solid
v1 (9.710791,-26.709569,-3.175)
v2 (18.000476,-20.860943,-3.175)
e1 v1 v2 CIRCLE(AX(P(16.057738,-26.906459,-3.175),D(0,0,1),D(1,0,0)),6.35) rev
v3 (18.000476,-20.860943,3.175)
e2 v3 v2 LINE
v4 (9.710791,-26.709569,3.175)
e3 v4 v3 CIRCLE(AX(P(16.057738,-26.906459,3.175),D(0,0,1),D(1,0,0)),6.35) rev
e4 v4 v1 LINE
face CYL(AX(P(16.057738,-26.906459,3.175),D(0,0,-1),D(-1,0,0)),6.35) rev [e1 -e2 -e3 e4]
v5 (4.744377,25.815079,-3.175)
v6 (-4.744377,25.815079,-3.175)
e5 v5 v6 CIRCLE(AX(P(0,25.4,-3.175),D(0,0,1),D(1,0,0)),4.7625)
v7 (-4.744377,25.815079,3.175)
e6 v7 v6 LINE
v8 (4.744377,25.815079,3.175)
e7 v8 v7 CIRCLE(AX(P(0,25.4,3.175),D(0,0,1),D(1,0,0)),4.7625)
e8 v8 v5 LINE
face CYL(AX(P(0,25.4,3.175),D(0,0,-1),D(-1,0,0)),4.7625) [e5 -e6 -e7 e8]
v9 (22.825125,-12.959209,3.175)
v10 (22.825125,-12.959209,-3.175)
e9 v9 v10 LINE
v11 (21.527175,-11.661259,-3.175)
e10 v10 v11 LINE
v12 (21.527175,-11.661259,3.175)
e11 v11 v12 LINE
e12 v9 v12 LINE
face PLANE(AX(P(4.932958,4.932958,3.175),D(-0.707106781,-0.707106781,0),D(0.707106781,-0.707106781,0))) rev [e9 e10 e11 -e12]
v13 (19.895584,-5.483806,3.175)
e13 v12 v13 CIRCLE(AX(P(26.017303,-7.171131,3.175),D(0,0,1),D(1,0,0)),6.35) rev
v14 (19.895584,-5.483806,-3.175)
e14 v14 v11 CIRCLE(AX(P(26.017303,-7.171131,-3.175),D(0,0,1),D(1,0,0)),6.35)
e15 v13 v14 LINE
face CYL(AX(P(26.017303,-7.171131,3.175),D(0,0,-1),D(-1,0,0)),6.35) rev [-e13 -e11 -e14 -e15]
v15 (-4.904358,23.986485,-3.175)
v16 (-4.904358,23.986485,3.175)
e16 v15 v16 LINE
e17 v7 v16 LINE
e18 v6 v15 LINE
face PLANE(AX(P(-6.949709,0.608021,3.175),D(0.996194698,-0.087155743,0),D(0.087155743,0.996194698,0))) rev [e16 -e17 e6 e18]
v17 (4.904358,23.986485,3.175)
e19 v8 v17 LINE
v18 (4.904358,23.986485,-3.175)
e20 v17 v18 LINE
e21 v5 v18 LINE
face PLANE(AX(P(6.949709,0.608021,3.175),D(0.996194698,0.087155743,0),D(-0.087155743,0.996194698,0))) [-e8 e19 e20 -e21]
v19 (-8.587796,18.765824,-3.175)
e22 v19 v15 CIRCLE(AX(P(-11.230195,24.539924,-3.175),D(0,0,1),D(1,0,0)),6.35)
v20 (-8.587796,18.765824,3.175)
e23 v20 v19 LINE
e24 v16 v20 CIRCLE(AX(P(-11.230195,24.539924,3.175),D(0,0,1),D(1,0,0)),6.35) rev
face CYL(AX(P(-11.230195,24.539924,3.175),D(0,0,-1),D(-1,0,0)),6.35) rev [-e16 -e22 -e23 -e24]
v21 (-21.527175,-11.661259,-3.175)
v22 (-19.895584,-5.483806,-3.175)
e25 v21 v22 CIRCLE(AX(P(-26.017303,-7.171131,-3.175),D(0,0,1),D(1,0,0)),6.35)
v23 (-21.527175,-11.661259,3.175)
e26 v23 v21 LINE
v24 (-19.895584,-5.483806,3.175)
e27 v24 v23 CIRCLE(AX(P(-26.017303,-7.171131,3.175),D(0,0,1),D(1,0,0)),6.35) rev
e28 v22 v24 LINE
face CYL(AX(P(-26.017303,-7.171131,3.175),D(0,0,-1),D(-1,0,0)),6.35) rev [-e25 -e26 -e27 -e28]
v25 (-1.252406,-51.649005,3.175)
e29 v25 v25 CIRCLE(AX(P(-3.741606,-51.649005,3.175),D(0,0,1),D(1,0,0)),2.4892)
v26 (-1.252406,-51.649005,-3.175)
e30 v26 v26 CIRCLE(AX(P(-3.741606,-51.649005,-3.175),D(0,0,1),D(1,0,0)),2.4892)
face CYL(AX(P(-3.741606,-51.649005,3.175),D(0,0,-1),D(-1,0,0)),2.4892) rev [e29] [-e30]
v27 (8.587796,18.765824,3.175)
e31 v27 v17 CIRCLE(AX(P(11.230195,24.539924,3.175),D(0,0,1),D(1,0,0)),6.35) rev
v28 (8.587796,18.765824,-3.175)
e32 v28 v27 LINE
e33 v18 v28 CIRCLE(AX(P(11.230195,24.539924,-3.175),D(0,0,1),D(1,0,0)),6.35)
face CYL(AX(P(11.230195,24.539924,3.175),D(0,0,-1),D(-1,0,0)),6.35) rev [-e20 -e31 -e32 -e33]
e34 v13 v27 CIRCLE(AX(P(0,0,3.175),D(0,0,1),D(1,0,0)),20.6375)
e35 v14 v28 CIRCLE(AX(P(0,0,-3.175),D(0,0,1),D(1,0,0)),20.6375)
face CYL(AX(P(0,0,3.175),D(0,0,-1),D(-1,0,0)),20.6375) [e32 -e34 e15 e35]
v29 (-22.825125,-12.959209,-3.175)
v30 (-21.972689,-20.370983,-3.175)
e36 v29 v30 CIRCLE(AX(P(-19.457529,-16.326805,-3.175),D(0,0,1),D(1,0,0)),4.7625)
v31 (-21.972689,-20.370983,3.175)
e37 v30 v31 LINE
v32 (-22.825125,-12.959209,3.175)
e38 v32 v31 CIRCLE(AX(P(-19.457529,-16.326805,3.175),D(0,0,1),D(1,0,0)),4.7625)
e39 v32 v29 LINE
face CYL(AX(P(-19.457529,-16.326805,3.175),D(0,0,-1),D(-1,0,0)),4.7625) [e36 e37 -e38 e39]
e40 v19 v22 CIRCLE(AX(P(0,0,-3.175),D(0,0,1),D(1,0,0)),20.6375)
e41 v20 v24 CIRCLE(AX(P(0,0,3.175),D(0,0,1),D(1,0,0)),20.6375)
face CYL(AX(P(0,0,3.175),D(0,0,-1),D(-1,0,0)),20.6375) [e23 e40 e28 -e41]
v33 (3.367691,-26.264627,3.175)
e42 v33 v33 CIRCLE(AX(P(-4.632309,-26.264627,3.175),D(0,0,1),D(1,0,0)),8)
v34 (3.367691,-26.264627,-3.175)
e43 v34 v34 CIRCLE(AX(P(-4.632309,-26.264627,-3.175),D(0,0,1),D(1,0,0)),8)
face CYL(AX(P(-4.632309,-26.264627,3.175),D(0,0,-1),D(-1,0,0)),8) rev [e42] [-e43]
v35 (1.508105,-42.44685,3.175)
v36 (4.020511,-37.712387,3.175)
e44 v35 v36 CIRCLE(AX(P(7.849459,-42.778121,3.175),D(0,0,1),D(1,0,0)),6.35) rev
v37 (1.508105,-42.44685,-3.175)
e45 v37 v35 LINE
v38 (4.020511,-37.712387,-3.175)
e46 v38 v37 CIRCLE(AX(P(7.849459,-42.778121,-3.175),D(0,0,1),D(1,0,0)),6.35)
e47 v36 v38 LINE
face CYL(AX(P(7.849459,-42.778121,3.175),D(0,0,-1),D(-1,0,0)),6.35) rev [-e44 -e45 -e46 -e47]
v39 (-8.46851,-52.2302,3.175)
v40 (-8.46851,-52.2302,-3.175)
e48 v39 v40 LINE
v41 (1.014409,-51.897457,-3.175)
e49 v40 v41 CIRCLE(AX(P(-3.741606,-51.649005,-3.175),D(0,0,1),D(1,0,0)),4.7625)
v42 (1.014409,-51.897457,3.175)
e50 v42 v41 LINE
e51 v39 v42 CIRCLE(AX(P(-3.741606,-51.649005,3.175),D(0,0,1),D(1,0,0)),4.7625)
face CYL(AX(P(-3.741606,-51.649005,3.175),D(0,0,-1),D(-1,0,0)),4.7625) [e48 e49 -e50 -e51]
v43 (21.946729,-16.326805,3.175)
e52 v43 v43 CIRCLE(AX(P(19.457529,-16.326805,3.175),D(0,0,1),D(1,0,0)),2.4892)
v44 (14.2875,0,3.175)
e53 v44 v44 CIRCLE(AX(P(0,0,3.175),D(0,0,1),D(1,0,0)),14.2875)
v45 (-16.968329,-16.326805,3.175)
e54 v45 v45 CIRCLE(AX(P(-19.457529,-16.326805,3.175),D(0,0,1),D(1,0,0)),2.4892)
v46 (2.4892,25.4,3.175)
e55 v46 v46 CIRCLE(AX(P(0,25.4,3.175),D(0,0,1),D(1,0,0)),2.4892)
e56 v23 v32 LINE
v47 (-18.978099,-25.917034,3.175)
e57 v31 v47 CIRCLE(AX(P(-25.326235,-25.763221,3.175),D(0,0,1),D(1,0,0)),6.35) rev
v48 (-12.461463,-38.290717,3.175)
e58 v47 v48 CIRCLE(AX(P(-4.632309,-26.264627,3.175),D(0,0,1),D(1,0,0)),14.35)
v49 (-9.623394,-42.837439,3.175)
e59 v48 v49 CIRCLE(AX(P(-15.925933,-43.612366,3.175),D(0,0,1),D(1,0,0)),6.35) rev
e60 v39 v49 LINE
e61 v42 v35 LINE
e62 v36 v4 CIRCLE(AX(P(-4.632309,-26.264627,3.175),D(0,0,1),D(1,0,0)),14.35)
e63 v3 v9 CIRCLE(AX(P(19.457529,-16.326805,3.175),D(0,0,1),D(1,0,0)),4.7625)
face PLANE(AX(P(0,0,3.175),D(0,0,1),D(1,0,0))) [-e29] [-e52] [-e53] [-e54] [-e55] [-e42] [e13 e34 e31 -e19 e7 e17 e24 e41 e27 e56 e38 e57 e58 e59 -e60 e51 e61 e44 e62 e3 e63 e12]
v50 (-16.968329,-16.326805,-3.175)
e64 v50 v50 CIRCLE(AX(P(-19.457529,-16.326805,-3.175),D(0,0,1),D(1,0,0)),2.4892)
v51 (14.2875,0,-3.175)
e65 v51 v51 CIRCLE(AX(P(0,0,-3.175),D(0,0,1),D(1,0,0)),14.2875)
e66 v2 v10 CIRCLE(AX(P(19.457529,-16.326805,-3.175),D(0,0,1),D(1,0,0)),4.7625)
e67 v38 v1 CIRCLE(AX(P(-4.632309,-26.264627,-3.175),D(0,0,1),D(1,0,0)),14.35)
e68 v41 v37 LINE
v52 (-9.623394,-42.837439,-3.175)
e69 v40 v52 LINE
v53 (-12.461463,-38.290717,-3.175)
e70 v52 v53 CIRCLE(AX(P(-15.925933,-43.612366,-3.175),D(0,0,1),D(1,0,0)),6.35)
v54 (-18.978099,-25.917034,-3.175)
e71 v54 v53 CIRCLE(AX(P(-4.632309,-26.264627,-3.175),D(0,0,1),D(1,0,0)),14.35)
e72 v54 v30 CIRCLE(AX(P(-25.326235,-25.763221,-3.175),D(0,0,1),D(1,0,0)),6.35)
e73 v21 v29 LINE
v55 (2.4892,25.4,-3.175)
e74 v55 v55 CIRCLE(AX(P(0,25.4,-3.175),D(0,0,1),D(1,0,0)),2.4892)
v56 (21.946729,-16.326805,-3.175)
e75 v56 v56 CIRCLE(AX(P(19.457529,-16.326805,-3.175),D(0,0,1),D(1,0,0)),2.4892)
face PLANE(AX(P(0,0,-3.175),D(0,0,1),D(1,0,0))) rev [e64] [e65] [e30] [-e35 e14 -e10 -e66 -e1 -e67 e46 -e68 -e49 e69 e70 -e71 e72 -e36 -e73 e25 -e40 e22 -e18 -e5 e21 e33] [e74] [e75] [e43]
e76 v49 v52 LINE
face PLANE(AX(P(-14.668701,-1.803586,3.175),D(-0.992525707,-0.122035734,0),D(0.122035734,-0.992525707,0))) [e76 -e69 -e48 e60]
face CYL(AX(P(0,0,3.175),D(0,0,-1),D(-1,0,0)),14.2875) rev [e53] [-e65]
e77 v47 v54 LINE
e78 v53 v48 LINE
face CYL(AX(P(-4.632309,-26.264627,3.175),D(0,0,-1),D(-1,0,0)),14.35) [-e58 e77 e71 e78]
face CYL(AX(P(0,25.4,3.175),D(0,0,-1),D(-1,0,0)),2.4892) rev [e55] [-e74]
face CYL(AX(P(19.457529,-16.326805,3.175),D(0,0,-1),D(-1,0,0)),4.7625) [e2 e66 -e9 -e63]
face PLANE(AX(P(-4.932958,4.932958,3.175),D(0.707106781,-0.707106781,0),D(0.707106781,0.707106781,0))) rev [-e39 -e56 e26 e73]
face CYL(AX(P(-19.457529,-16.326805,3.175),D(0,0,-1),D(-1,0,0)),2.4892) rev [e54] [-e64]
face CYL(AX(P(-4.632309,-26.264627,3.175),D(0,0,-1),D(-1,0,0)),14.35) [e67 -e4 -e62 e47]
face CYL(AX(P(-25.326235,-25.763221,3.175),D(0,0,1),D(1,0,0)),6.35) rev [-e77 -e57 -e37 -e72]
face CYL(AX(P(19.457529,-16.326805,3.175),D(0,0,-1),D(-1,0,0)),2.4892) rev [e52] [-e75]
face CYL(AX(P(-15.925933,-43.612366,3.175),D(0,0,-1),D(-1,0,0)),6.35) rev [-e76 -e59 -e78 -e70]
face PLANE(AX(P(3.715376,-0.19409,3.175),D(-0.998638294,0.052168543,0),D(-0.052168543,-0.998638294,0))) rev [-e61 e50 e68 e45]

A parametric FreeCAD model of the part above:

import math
import FreeCAD as App
import Part
import Sketcher
Q = App.Units.Quantity


def edges_at(feature, points):
    """Names of the edges that pass closest to the given points."""
    edges = feature.Shape.Edges
    near = lambda p: min(range(len(edges)), key=lambda i: edges[i].distToShape(Part.Vertex(*p))[0])
    return sorted({f"Edge{near(p) + 1}" for p in points})

doc = App.newDocument("Part")
params = doc.addObject("Spreadsheet::Sheet", "Params")
for row, (alias, value) in enumerate([
    ("sketch1_diameter", "0.196 in"),
    ("sketch1_diameter2", "1.125 in"),
    ("sketch1_radius", "0.1875 in"),
    ("sketch1_radius2", "0.8125 in"),
    ("pad1_length", "0.25 in"),
    ("sketch2_radius", "0.25 in"),
    ("sketch2_diameter", "0.196 in"),
    ("sketch2_radius2", "0.1875 in"),
    ("sketch2_radius3", "0.1875 in"),
    ("sketch2_radius4", "0.8125 in"),
    ("pad2_length", "0.25 in"),
    ("fillet_radius", "0.25 in"),
], start=1):
    params.set(f"A{row}", alias)
    params.set(f"B{row}", "=" + value)
    params.setAlias(f"B{row}", alias)

body = doc.addObject("PartDesign::Body", "Body")

# Sketch on XY plane
sketch1 = doc.addObject("Sketcher::SketchObject", "Sketch")
body.addObject(sketch1)
sketch1.AttachmentSupport = (doc.XY_Plane, [""])
sketch1.MapMode = "FlatFace"
sketch1.addGeometry(Part.ArcOfCircle(Part.Circle(App.Vector(0, 25.4, 0), App.Vector(0, 0, 1), 4.8), math.radians(5), math.radians(175)), False)
sketch1.addGeometry(Part.LineSegment(App.Vector(-4.7, 25.8, 0), App.Vector(-5.3, 20, 0)), False)
sketch1.addGeometry(Part.ArcOfCircle(Part.Circle(App.Vector(0, 0, 0), App.Vector(0, 0, 1), 20.6), math.radians(105), math.radians(205)), False)
sketch1.addGeometry(Part.LineSegment(App.Vector(-18.7, -8.8, 0), App.Vector(-22.8, -13, 0)), False)
sketch1.addGeometry(Part.ArcOfCircle(Part.Circle(App.Vector(-19.5, -16.3, 0), App.Vector(0, 0, 1), 4.8), math.radians(135), math.radians(305)), False)
sketch1.addGeometry(Part.LineSegment(App.Vector(-16.7, -20.2, 0), App.Vector(-11.9, -16.9, 0)), False)
sketch1.addGeometry(Part.ArcOfCircle(Part.Circle(App.Vector(0, 0, 0), App.Vector(0, 0, 1), 20.6), math.radians(-125), math.radians(-55)), False)
sketch1.addGeometry(Part.LineSegment(App.Vector(11.9, -16.9, 0), App.Vector(16.7, -20.2, 0)), False)
sketch1.addGeometry(Part.ArcOfCircle(Part.Circle(App.Vector(19.5, -16.3, 0), App.Vector(0, 0, 1), 4.8), math.radians(-125), math.radians(45)), False)
sketch1.addGeometry(Part.LineSegment(App.Vector(22.8, -13, 0), App.Vector(18.7, -8.8, 0)), False)
sketch1.addGeometry(Part.ArcOfCircle(Part.Circle(App.Vector(0, 0, 0), App.Vector(0, 0, 1), 20.6), math.radians(-25), math.radians(75)), False)
sketch1.addGeometry(Part.LineSegment(App.Vector(5.3, 20, 0), App.Vector(4.7, 25.8, 0)), False)
sketch1.addGeometry(Part.Circle(App.Vector(-19.5, -16.3, 0), App.Vector(0, 0, 1), 2.5), False)
sketch1.addGeometry(Part.Circle(App.Vector(19.5, -16.3, 0), App.Vector(0, 0, 1), 2.5), False)
sketch1.addGeometry(Part.Circle(App.Vector(0, 0, 0), App.Vector(0, 0, 1), 14.3), False)
sketch1.addGeometry(Part.Circle(App.Vector(0, 25.4, 0), App.Vector(0, 0, 1), 2.5), False)
sketch1.addConstraint(Sketcher.Constraint("Tangent", 0, 2, 1, 1))
sketch1.addConstraint(Sketcher.Constraint("Coincident", 1, 2, 2, 1))
sketch1.addConstraint(Sketcher.Constraint("Coincident", 2, 2, 3, 1))
sketch1.addConstraint(Sketcher.Constraint("Tangent", 3, 2, 4, 1))
sketch1.addConstraint(Sketcher.Constraint("Tangent", 4, 2, 5, 1))
sketch1.addConstraint(Sketcher.Constraint("Coincident", 5, 2, 6, 1))
sketch1.addConstraint(Sketcher.Constraint("Coincident", 6, 2, 7, 1))
sketch1.addConstraint(Sketcher.Constraint("Tangent", 7, 2, 8, 1))
sketch1.addConstraint(Sketcher.Constraint("Tangent", 8, 2, 9, 1))
sketch1.addConstraint(Sketcher.Constraint("Coincident", 9, 2, 10, 1))
sketch1.addConstraint(Sketcher.Constraint("Coincident", 10, 2, 11, 1))
sketch1.addConstraint(Sketcher.Constraint("Tangent", 11, 2, 0, 1))
sketch1.addConstraint(Sketcher.Constraint("Coincident", 2, 3, -1, 1))
sketch1.addConstraint(Sketcher.Constraint("Coincident", 6, 3, -1, 1))
sketch1.addConstraint(Sketcher.Constraint("Coincident", 10, 3, -1, 1))
sketch1.addConstraint(Sketcher.Constraint("Coincident", 14, 3, -1, 1))
sketch1.addConstraint(Sketcher.Constraint("Coincident", 12, 3, 4, 3))
sketch1.addConstraint(Sketcher.Constraint("Coincident", 13, 3, 8, 3))
sketch1.addConstraint(Sketcher.Constraint("Coincident", 15, 3, 0, 3))
sketch1.addConstraint(Sketcher.Constraint("Equal", 0, 4))
sketch1.addConstraint(Sketcher.Constraint("Equal", 2, 6))
sketch1.addConstraint(Sketcher.Constraint("Equal", 4, 8))
sketch1.addConstraint(Sketcher.Constraint("Equal", 6, 10))
sketch1.addConstraint(Sketcher.Constraint("Equal", 12, 13))
sketch1.addConstraint(Sketcher.Constraint("Equal", 13, 15))
sketch1.addConstraint(Sketcher.Constraint("Symmetric", 4, 3, 8, 3, -2))
sketch1.addConstraint(Sketcher.Constraint("Symmetric", 0, 2, 11, 2, -2))
sketch1.addConstraint(Sketcher.Constraint("Perpendicular", 3, 9))
sketch1.addConstraint(Sketcher.Constraint("Horizontal", 5, 2, 6, 2))
sketch1.addConstraint(Sketcher.Constraint("Horizontal", 3, 2, 8, 2))
sketch1.addConstraint(Sketcher.Constraint("Equal", 1, 3))
sketch1.addConstraint(Sketcher.Constraint("Equal", 3, 5))
sketch1.addConstraint(Sketcher.Constraint("Diameter", 12, Q("0.196 in")))
sketch1.addConstraint(Sketcher.Constraint("Diameter", 14, Q("1.125 in")))
sketch1.addConstraint(Sketcher.Constraint("DistanceY", -1, 1, 0, 3, Q("1 in")))
sketch1.addConstraint(Sketcher.Constraint("Angle", 1, Q("-95 deg")))
sketch1.addConstraint(Sketcher.Constraint("Angle", 5, Q("35 deg")))
sketch1.addConstraint(Sketcher.Constraint("Radius", 0, Q("0.1875 in")))
sketch1.addConstraint(Sketcher.Constraint("Radius", 2, Q("0.8125 in")))
sketch1.setExpression("Constraints[32]", "Params.sketch1_diameter")
sketch1.setExpression("Constraints[33]", "Params.sketch1_diameter2")
sketch1.setExpression("Constraints[37]", "Params.sketch1_radius")
sketch1.setExpression("Constraints[38]", "Params.sketch1_radius2")
pad1 = doc.addObject("PartDesign::Pad", "Pad")
body.addObject(pad1)
pad1.Profile = sketch1
pad1.setExpression("Length", "Params.pad1_length")
pad1.Midplane = True

# Sketch on XY plane
sketch2 = doc.addObject("Sketcher::SketchObject", "Sketch001")
body.addObject(sketch2)
sketch2.AttachmentSupport = (doc.XY_Plane, [""])
sketch2.MapMode = "FlatFace"
sketch2.addGeometry(Part.LineSegment(App.Vector(-10.026081, -39.562361, 0), App.Vector(-8.46851, -52.2302, 0)), False)
sketch2.addGeometry(Part.ArcOfCircle(Part.Circle(App.Vector(-3.741606, -51.649005, 0), App.Vector(0, 0, 1), 4.7625), math.radians(-172.990395), math.radians(-2.990395)), False)
sketch2.addGeometry(Part.LineSegment(App.Vector(1.014409, -51.897457, 0), App.Vector(1.680248, -39.151602, 0)), False)
sketch2.addGeometry(Part.ArcOfCircle(Part.Circle(App.Vector(-4.632309, -26.264627, 0), App.Vector(0, 0, 1), 14.35), math.radians(-63.902535), math.radians(-1.776821)), False)
sketch2.addGeometry(Part.ArcOfCircle(Part.Circle(App.Vector(16.057738, -26.906459, 0), App.Vector(0, 0, 1), 6.35), math.radians(72.185099), math.radians(178.223179)), False)
sketch2.addGeometry(Part.ArcOfCircle(Part.Circle(App.Vector(19.457529, -16.326805, 0), App.Vector(0, 0, 1), 4.7625), math.radians(-125), math.radians(-107.814901)), False)
sketch2.addGeometry(Part.LineSegment(App.Vector(16.725871, -20.228017, 0), App.Vector(11.908665, -16.854973, 0)), False)
sketch2.addGeometry(Part.ArcOfCircle(Part.Circle(App.Vector(0, 0, 0), App.Vector(0, 0, 1), 20.6375), math.radians(-67.780921), math.radians(-54.757374)), False)
sketch2.addGeometry(Part.ArcOfCircle(Part.Circle(App.Vector(-4.632309, -26.264627, 0), App.Vector(0, 0, 1), 14.35), math.radians(29.928887), math.radians(58.684237)), False)
sketch2.addGeometry(Part.ArcOfCircle(Part.Circle(App.Vector(0, 0, 0), App.Vector(0, 0, 1), 14.2875), math.radians(-121.413582), math.radians(-78.591269)), False)
sketch2.addGeometry(Part.ArcOfCircle(Part.Circle(App.Vector(-4.632309, -26.264627, 0), App.Vector(0, 0, 1), 14.35), math.radians(101.310911), math.radians(247.921745)), False)
sketch2.addGeometry(Part.Circle(App.Vector(-3.741606, -51.649005, 0), App.Vector(0, 0, 1), 2.4892), False)
sketch2.addGeometry(Part.ArcOfCircle(Part.Circle(App.Vector(-4.632309, -26.264627, 0), App.Vector(0, 0, 1), 8), math.radians(115.03643), math.radians(404.958718)), False)
sketch2.addGeometry(Part.ArcOfCircle(Part.Circle(App.Vector(-4.632309, -26.264627, 0), App.Vector(0, 0, 1), 8), math.radians(44.958718), math.radians(115.03643)), False)
sketch2.addConstraint(Sketcher.Constraint("Coincident", 0, 2, 1, 1))
sketch2.addConstraint(Sketcher.Constraint("Coincident", 1, 2, 2, 1))
sketch2.addConstraint(Sketcher.Constraint("Coincident", 2, 2, 3, 1))
sketch2.addConstraint(Sketcher.Constraint("Coincident", 3, 2, 4, 2))
sketch2.addConstraint(Sketcher.Constraint("Coincident", 4, 1, 5, 2))
sketch2.addConstraint(Sketcher.Constraint("Coincident", 5, 1, 6, 1))
sketch2.addConstraint(Sketcher.Constraint("Coincident", 6, 2, 7, 2))
sketch2.addConstraint(Sketcher.Constraint("Coincident", 7, 1, 8, 1))
sketch2.addConstraint(Sketcher.Constraint("Coincident", 8, 2, 9, 2))
sketch2.addConstraint(Sketcher.Constraint("Coincident", 9, 1, 10, 1))
sketch2.addConstraint(Sketcher.Constraint("Coincident", 10, 2, 0, 1))
sketch2.addConstraint(Sketcher.Constraint("Coincident", 12, 1, 13, 2))
sketch2.addConstraint(Sketcher.Constraint("Coincident", 13, 1, 12, 2))
sketch2.addConstraint(Sketcher.Constraint("Coincident", 7, 3, -1, 1))
sketch2.addConstraint(Sketcher.Constraint("Coincident", 9, 3, -1, 1))
sketch2.addConstraint(Sketcher.Constraint("Coincident", 8, 3, 3, 3))
sketch2.addConstraint(Sketcher.Constraint("Coincident", 10, 3, 3, 3))
sketch2.addConstraint(Sketcher.Constraint("Coincident", 11, 3, 1, 3))
sketch2.addConstraint(Sketcher.Constraint("Coincident", 12, 3, 3, 3))
sketch2.addConstraint(Sketcher.Constraint("Radius", 4, Q("0.25 in")))
sketch2.addConstraint(Sketcher.Constraint("Diameter", 11, Q("0.196 in")))
sketch2.addConstraint(Sketcher.Constraint("Radius", 1, Q("0.1875 in")))
sketch2.addConstraint(Sketcher.Constraint("Radius", 5, Q("0.1875 in")))
sketch2.addConstraint(Sketcher.Constraint("Radius", 7, Q("0.8125 in")))
sketch2.addConstraint(Sketcher.Constraint("Radius", 9, Q("0.5625 in")))
sketch2.addConstraint(Sketcher.Constraint("Radius", 3, Q("14.35 mm")))
sketch2.addConstraint(Sketcher.Constraint("Radius", 8, Q("14.35 mm")))
sketch2.addConstraint(Sketcher.Constraint("Radius", 10, Q("14.35 mm")))
sketch2.addConstraint(Sketcher.Constraint("Radius", 12, Q("8 mm")))
sketch2.addConstraint(Sketcher.Constraint("Radius", 13, Q("8 mm")))
sketch2.addConstraint(Sketcher.Constraint("DistanceY", 0, 2, 1, 2, Q("0.0131001 in")))
sketch2.addConstraint(Sketcher.Constraint("DistanceY", 0, 2, -1, 1, Q("52.2302 mm")))
sketch2.addConstraint(Sketcher.Constraint("DistanceY", 2, 2, -1, 1, Q("39.151602 mm")))
sketch2.addConstraint(Sketcher.Constraint("DistanceY", 1, 3, 5, 3, Q("35.322199 mm")))
sketch2.addConstraint(Sketcher.Constraint("DistanceX", 0, 2, 3, 3, Q("3.836201 mm")))
sketch2.addConstraint(Sketcher.Constraint("DistanceX", 8, 3, 3, 2, Q("14.3431 mm")))
sketch2.addConstraint(Sketcher.Constraint("DistanceX", 8, 2, 6, 2, Q("9.082501 mm")))
sketch2.addConstraint(Sketcher.Constraint("DistanceX", 3, 3, -1, 1, Q("4.632309 mm")))
sketch2.addConstraint(Sketcher.Constraint("DistanceX", -1, 1, 4, 3, Q("16.057738 mm")))
sketch2.addConstraint(Sketcher.Constraint("DistanceY", 4, 3, -1, 1, Q("26.906459 mm")))
sketch2.addConstraint(Sketcher.Constraint("DistanceX", -1, 1, 5, 3, Q("19.457529 mm")))
sketch2.addConstraint(Sketcher.Constraint("DistanceX", -1, 1, 5, 1, Q("16.725871 mm")))
sketch2.addConstraint(Sketcher.Constraint("DistanceX", 10, 2, -1, 1, Q("10.026081 mm")))
sketch2.addConstraint(Sketcher.Constraint("DistanceX", -1, 1, 13, 1, Q("1.02862 mm")))
sketch2.addConstraint(Sketcher.Constraint("DistanceX", 6, 2, 4, 1, Q("6.091811 mm")))
sketch2.addConstraint(Sketcher.Constraint("DistanceX", 12, 1, 9, 1, Q("0.571049 mm")))
sketch2.setExpression("Constraints[19]", "Params.sketch2_radius")
sketch2.setExpression("Constraints[20]", "Params.sketch2_diameter")
sketch2.setExpression("Constraints[21]", "Params.sketch2_radius2")
sketch2.setExpression("Constraints[22]", "Params.sketch2_radius3")
sketch2.setExpression("Constraints[23]", "Params.sketch2_radius4")
pad2 = doc.addObject("PartDesign::Pad", "Pad001")
body.addObject(pad2)
pad2.Profile = sketch2
pad2.setExpression("Length", "Params.pad2_length")
pad2.Midplane = True

# Sketch on XY plane
sketch3 = doc.addObject("Sketcher::SketchObject", "Sketch002")
body.addObject(sketch3)
sketch3.AttachmentSupport = (doc.XY_Plane, [""])
sketch3.MapMode = "FlatFace"
sketch3.addGeometry(Part.ArcOfCircle(Part.Circle(App.Vector(-4.6, -26.3, 0), App.Vector(0, 0, 1), 8), math.radians(115), math.radians(360)), False)
sketch3.addGeometry(Part.ArcOfCircle(Part.Circle(App.Vector(-4.6, -26.3, 0), App.Vector(0, 0, 1), 8), math.radians(0), math.radians(45)), False)
sketch3.addGeometry(Part.ArcOfCircle(Part.Circle(App.Vector(-4.6, -26.3, 0), App.Vector(0, 0, 1), 8), math.radians(45), math.radians(80)), False)
sketch3.addGeometry(Part.ArcOfCircle(Part.Circle(App.Vector(-4.6, -26.3, 0), App.Vector(0, 0, 1), 8), math.radians(80), math.radians(115)), False)
sketch3.addConstraint(Sketcher.Constraint("Tangent", 0, 2, 1, 1))
sketch3.addConstraint(Sketcher.Constraint("Tangent", 1, 2, 2, 1))
sketch3.addConstraint(Sketcher.Constraint("Tangent", 2, 2, 3, 1))
sketch3.addConstraint(Sketcher.Constraint("Tangent", 3, 2, 0, 1))
sketch3.addConstraint(Sketcher.Constraint("Equal", 0, 1))
sketch3.addConstraint(Sketcher.Constraint("Horizontal", 3, 3, 0, 2))
sketch3.addConstraint(Sketcher.Constraint("Radius", 0, Q("8 mm")))
sketch3.addConstraint(Sketcher.Constraint("DistanceX", 0, 3, -1, 1, Q("4.632309 mm")))
sketch3.addConstraint(Sketcher.Constraint("DistanceX", -1, 1, 1, 2, Q("1.02862 mm")))
sketch3.addConstraint(Sketcher.Constraint("DistanceY", 1, 2, -1, 1, Q("20.61185 mm")))
sketch3.addConstraint(Sketcher.Constraint("DistanceX", 2, 2, -1, 1, Q("3.24279 mm")))
sketch3.addConstraint(Sketcher.Constraint("DistanceY", 3, 3, 3, 2, Q("7.248311 mm")))
pocket1 = doc.addObject("PartDesign::Pocket", "Pocket")
body.addObject(pocket1)
pocket1.Profile = sketch3
pocket1.Type = "ThroughAll"
pocket1.Midplane = True
doc.recompute()

fillet = doc.addObject("PartDesign::Fillet", "Fillet")
body.addObject(fillet)
fillet.Base = (pocket1, edges_at(pocket1, [
    (18.667, -8.801, 0),
    (-18.667, -8.801, 0),
    (-5.257, 19.957, 0),
    (5.257, 19.957, 0),
    (-17.914, -20.832, 0),
    (-10.026, -39.562, 0),
    (1.68, -39.152, 0),
]))
fillet.setExpression("Radius", "Params.fillet_radius")

doc.recompute()
